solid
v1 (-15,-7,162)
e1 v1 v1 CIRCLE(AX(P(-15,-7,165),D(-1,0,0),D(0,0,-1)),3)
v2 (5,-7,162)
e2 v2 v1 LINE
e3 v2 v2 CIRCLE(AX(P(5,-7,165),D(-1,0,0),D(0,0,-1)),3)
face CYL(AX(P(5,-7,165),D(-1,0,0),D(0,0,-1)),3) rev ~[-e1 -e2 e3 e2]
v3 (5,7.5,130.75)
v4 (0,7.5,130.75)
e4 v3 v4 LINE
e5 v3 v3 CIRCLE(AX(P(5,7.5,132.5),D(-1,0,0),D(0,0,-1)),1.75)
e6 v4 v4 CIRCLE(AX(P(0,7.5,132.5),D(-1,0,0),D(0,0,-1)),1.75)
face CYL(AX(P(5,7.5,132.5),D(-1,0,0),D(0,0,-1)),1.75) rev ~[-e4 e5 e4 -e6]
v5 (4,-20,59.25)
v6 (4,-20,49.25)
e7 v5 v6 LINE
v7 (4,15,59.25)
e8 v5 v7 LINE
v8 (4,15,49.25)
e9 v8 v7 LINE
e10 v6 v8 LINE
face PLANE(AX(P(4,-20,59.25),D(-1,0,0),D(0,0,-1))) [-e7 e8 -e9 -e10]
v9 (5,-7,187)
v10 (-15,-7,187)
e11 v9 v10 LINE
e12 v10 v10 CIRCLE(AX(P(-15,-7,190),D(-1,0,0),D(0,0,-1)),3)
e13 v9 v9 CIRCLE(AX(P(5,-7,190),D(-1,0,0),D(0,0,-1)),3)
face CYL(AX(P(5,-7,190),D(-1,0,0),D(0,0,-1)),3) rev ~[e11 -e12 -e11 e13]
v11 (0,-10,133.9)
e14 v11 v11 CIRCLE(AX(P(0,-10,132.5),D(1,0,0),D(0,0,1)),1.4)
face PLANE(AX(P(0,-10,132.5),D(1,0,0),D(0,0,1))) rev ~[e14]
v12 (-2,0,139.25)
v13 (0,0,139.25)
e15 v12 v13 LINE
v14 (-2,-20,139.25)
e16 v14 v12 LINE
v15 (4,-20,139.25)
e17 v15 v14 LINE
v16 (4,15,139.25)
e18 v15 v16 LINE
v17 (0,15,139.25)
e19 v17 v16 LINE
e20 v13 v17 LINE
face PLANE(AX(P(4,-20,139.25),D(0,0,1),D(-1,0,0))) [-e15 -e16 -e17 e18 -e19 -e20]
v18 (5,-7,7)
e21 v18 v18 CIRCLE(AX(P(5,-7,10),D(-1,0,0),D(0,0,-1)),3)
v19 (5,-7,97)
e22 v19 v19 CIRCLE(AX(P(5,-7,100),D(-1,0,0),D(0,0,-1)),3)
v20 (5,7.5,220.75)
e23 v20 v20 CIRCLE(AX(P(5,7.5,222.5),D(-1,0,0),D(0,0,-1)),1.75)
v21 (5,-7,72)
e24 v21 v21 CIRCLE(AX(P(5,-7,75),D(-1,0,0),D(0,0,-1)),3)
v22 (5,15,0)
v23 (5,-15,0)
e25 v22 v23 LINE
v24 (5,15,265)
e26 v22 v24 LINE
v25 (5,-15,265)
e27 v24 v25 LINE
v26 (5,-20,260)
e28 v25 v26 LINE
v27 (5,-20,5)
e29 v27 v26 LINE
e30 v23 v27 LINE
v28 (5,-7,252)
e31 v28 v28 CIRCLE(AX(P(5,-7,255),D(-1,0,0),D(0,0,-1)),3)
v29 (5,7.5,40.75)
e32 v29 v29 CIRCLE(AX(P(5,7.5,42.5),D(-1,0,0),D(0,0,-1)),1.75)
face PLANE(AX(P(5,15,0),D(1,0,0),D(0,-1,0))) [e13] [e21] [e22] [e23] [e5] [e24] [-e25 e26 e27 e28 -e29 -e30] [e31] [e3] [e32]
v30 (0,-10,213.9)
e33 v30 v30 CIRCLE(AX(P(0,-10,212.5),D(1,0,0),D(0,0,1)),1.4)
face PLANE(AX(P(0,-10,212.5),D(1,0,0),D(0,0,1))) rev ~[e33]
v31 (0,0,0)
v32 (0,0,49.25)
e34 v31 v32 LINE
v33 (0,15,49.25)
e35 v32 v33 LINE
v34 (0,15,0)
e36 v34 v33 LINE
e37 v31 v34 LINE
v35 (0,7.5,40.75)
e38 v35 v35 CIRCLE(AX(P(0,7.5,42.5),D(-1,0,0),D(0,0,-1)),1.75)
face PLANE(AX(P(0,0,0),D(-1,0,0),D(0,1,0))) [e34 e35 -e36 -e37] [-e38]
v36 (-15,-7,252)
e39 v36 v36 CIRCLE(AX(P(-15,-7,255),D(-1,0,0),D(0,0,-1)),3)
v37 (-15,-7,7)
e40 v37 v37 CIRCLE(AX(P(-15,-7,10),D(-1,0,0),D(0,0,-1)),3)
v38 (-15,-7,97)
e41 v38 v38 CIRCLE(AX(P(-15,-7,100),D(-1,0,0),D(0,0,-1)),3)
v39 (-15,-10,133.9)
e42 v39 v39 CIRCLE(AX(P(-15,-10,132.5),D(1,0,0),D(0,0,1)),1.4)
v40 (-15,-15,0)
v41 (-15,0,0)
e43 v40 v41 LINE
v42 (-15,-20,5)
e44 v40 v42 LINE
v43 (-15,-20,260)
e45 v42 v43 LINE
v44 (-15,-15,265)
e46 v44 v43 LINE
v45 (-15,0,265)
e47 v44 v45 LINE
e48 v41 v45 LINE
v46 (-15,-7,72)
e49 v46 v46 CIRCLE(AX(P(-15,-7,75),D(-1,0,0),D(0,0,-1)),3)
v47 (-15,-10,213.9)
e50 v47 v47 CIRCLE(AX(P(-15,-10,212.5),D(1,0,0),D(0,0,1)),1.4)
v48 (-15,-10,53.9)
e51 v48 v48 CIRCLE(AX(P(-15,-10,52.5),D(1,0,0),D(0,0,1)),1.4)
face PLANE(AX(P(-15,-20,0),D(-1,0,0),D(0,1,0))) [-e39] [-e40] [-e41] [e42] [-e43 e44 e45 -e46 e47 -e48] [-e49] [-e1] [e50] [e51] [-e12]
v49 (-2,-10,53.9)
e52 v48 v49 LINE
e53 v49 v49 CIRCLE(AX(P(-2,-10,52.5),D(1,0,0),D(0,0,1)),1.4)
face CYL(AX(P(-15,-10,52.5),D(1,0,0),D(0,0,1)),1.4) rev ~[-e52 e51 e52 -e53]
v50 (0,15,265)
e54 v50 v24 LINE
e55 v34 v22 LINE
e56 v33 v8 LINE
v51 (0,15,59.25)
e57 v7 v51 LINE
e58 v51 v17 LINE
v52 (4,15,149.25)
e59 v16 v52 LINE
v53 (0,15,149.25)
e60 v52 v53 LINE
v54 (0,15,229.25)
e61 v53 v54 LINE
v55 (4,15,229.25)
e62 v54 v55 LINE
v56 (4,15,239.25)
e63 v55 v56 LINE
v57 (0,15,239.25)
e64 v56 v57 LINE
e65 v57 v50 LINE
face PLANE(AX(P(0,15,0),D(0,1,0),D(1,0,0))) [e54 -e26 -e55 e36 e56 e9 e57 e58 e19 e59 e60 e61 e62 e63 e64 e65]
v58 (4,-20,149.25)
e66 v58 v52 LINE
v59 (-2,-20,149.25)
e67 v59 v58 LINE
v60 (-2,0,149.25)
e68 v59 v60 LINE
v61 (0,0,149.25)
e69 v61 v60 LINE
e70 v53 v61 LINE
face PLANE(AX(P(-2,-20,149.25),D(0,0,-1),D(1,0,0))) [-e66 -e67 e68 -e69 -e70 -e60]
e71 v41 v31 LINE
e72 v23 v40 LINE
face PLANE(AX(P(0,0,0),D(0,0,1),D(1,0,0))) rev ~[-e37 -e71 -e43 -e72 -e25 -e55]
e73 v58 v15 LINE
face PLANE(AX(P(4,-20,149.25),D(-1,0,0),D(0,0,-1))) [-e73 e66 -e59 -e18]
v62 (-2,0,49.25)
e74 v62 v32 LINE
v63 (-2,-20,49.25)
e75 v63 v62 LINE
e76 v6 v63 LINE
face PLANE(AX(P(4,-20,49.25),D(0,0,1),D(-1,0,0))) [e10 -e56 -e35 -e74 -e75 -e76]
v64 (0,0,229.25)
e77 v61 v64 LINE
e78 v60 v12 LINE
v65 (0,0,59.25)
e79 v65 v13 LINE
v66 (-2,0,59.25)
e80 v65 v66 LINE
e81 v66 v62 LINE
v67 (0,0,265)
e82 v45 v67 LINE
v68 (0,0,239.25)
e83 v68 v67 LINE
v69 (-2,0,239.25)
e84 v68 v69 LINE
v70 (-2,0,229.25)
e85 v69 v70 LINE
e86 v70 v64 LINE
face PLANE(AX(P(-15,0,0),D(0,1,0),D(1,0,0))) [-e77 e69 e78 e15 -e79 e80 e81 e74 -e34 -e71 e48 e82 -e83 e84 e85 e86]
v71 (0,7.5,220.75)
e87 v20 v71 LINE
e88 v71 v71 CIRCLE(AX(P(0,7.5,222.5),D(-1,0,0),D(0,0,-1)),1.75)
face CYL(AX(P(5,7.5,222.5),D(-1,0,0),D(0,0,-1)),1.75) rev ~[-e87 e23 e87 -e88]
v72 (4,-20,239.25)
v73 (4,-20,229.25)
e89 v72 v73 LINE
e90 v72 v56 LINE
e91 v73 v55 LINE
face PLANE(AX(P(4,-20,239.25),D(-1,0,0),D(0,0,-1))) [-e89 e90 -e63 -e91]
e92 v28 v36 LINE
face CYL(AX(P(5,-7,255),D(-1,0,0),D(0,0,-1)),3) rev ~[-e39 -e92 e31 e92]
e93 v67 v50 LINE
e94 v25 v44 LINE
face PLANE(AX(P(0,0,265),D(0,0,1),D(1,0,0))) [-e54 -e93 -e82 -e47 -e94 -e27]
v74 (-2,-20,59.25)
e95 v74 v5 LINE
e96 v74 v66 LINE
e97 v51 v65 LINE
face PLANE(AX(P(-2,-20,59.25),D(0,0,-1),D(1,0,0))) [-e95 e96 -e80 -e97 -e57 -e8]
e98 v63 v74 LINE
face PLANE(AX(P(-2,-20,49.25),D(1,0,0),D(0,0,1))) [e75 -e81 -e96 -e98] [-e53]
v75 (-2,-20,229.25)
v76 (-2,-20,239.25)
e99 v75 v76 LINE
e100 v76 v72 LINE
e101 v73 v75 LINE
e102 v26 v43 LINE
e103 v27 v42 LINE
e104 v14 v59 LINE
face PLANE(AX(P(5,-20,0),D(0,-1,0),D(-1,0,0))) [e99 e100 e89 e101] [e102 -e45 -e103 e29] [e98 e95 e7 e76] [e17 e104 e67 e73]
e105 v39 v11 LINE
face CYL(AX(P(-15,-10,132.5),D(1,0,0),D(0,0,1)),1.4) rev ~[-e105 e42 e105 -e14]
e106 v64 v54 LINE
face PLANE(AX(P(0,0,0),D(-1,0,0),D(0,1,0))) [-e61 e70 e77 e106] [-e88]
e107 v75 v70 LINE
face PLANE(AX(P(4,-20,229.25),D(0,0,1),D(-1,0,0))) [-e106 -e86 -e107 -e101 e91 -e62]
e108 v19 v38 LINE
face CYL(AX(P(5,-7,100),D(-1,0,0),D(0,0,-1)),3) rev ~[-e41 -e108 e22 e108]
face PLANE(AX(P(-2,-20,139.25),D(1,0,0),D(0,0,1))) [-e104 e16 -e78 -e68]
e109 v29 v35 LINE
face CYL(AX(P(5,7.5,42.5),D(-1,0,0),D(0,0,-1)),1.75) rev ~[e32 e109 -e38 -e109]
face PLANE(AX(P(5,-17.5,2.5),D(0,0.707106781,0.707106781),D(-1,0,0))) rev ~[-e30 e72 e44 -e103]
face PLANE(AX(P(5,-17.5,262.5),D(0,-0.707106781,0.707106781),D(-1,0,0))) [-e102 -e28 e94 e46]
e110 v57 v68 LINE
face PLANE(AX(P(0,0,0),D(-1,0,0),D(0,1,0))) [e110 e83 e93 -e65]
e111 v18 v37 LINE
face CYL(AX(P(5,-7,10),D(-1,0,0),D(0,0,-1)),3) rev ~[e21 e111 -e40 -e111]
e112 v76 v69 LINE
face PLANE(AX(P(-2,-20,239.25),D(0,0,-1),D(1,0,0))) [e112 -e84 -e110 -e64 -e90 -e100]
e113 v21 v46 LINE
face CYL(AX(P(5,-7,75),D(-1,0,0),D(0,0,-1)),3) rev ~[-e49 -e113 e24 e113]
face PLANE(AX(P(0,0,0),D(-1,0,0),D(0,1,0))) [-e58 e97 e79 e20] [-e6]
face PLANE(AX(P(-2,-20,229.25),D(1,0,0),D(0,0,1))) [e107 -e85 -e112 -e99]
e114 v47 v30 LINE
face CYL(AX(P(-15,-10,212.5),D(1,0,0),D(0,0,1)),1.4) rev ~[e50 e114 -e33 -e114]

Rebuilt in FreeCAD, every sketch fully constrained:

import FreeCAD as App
import Part
import Sketcher
from FreeCAD import Vector
Q = App.Units.Quantity


def edges_at(feature, points):
    """Names of the edges that pass closest to the given points."""
    edges = feature.Shape.Edges
    near = lambda p: min(range(len(edges)), key=lambda i: edges[i].distToShape(Part.Vertex(*p))[0])
    return sorted({f"Edge{near(p) + 1}" for p in points})


def add_polygon(sketch, points):
    """Adds a closed chain of lines whose ends are joined by coincident constraints."""
    first, n = sketch.GeometryCount, len(points)
    for a, b in zip(points, points[1:] + points[:1]):
        sketch.addGeometry(Part.LineSegment(App.Vector(*a, 0), App.Vector(*b, 0)), False)
    for i in range(n):
        sketch.addConstraint(Sketcher.Constraint("Coincident", first + i, 2, first + (i + 1) % n, 1))

doc = App.newDocument("Part")
body = doc.addObject("PartDesign::Body", "Body")

# Sketch on XY plane
sketch1 = body.newObject("Sketcher::SketchObject", "Sketch")
sketch1.AttachmentSupport = (doc.getObject("XY_Plane"), [""])
sketch1.MapMode = "FlatFace"
add_polygon(sketch1, [(0, 15), (0, 0), (-15, 0), (-15, -20), (5, -20), (5, 15)])  # lines 0-5
sketch1.addConstraint(Sketcher.Constraint("Vertical", 0))
sketch1.addConstraint(Sketcher.Constraint("Horizontal", 1))
sketch1.addConstraint(Sketcher.Constraint("Vertical", 2))
sketch1.addConstraint(Sketcher.Constraint("Horizontal", 3))
sketch1.addConstraint(Sketcher.Constraint("Vertical", 4))
sketch1.addConstraint(Sketcher.Constraint("Horizontal", 5))
sketch1.addConstraint(Sketcher.Constraint("Coincident", 0, 2, -1, 1))
sketch1.addConstraint(Sketcher.Constraint("Equal", 1, 0))
sketch1.addConstraint(Sketcher.Constraint("Equal", 3, 2))
sketch1.addConstraint(Sketcher.Constraint("DistanceX", 1, 2, 1, 1, Q("15 mm")))
sketch1.addConstraint(Sketcher.Constraint("DistanceX", 5, 2, 5, 1, Q("5 mm")))
pad1 = body.newObject("PartDesign::Pad", "Pad")
pad1.Profile = sketch1
pad1.Length = 265

# Sketch on YZ plane
sketch2 = body.newObject("Sketcher::SketchObject", "Sketch001")
sketch2.AttachmentSupport = (doc.getObject("YZ_Plane"), [""])
sketch2.MapMode = "FlatFace"
sketch2.AttachmentOffset = App.Placement(Vector(0, 0, 5), App.Rotation())
sketch2.addGeometry(Part.Circle(Vector(7.5, 222.5, 0), Vector(0, 0, 1), 1.8), False)
sketch2.addGeometry(Part.Circle(Vector(7.5, 132.5, 0), Vector(0, 0, 1), 1.8), False)
sketch2.addGeometry(Part.Circle(Vector(7.5, 42.5, 0), Vector(0, 0, 1), 1.8), False)
sketch2.addConstraint(Sketcher.Constraint("Equal", 0, 1))
sketch2.addConstraint(Sketcher.Constraint("Equal", 1, 2))
sketch2.addConstraint(Sketcher.Constraint("Vertical", 0, 3, 1, 3))
sketch2.addConstraint(Sketcher.Constraint("Vertical", 1, 3, 2, 3))
sketch2.addConstraint(Sketcher.Constraint("Diameter", 0, Q("3.5 mm")))
sketch2.addConstraint(Sketcher.Constraint("DistanceY", 1, 3, 0, 3, Q("90 mm")))
sketch2.addConstraint(Sketcher.Constraint("DistanceY", 2, 3, 1, 3, Q("90 mm")))
sketch2.addConstraint(Sketcher.Constraint("DistanceX", -1, 1, 0, 3, Q("7.5 mm")))
sketch2.addConstraint(Sketcher.Constraint("DistanceY", -1, 1, 0, 3, Q("222.5 mm")))
doc.recompute()
hole = body.newObject("PartDesign::Hole", "Hole")
hole.Profile = sketch2
hole.ThreadType = "None"
hole.Diameter = 3.5
hole.DepthType = "ThroughAll"
doc.recompute()

chamfer = body.newObject("PartDesign::Chamfer", "Chamfer")
chamfer.Base = (hole, edges_at(hole, [(-5, -20, 265), (-5, -20, 0)]))
chamfer.Size = 5

# Sketch on YZ plane
sketch3 = body.newObject("Sketcher::SketchObject", "Sketch002")
sketch3.AttachmentSupport = (doc.getObject("YZ_Plane"), [""])
sketch3.MapMode = "FlatFace"
sketch3.AttachmentOffset = App.Placement(Vector(0, 0, -15), App.Rotation())
sketch3.addGeometry(Part.Circle(Vector(-10, 52.5, 0), Vector(0, 0, 1), 1.4), False)
sketch3.addGeometry(Part.Circle(Vector(-10, 132.5, 0), Vector(0, 0, 1), 1.4), False)
sketch3.addGeometry(Part.Circle(Vector(-10, 212.5, 0), Vector(0, 0, 1), 1.4), False)
sketch3.addConstraint(Sketcher.Constraint("Equal", 0, 1))
sketch3.addConstraint(Sketcher.Constraint("Equal", 1, 2))
sketch3.addConstraint(Sketcher.Constraint("Vertical", 0, 3, 1, 3))
sketch3.addConstraint(Sketcher.Constraint("Vertical", 1, 3, 2, 3))
sketch3.addConstraint(Sketcher.Constraint("Diameter", 0, Q("2.8 mm")))
sketch3.addConstraint(Sketcher.Constraint("DistanceX", 0, 3, -1, 1, Q("10 mm")))
sketch3.addConstraint(Sketcher.Constraint("DistanceY", 0, 3, 1, 3, Q("80 mm")))
sketch3.addConstraint(Sketcher.Constraint("DistanceY", 1, 3, 2, 3, Q("80 mm")))
sketch3.addConstraint(Sketcher.Constraint("DistanceY", -1, 1, 0, 3, Q("52.5 mm")))
doc.recompute()
hole2 = body.newObject("PartDesign::Hole", "Hole001")
hole2.Profile = sketch3
hole2.ThreadType = "None"
hole2.Diameter = 2.8
hole2.DepthType = "Dimension"
hole2.Depth = 15
hole2.DrillPoint = "Flat"
hole2.Reversed = True

# Sketch on YZ plane
sketch4 = body.newObject("Sketcher::SketchObject", "Sketch003")
sketch4.AttachmentSupport = (doc.getObject("YZ_Plane"), [""])
sketch4.MapMode = "FlatFace"
sketch4.AttachmentOffset = App.Placement(Vector(0, 0, 5), App.Rotation())
sketch4.addGeometry(Part.Circle(Vector(-7, 255, 0), Vector(0, 0, 1), 3), False)
sketch4.addGeometry(Part.Circle(Vector(-7, 190, 0), Vector(0, 0, 1), 3), False)
sketch4.addGeometry(Part.Circle(Vector(-7, 165, 0), Vector(0, 0, 1), 3), False)
sketch4.addGeometry(Part.Circle(Vector(-7, 100, 0), Vector(0, 0, 1), 3), False)
sketch4.addGeometry(Part.Circle(Vector(-7, 10, 0), Vector(0, 0, 1), 3), False)
sketch4.addGeometry(Part.Circle(Vector(-7, 75, 0), Vector(0, 0, 1), 3), False)
sketch4.addConstraint(Sketcher.Constraint("Equal", 0, 1))
sketch4.addConstraint(Sketcher.Constraint("Equal", 1, 2))
sketch4.addConstraint(Sketcher.Constraint("Equal", 2, 3))
sketch4.addConstraint(Sketcher.Constraint("Equal", 3, 4))
sketch4.addConstraint(Sketcher.Constraint("Equal", 4, 5))
sketch4.addConstraint(Sketcher.Constraint("Vertical", 0, 3, 1, 3))
sketch4.addConstraint(Sketcher.Constraint("Vertical", 1, 3, 2, 3))
sketch4.addConstraint(Sketcher.Constraint("Vertical", 2, 3, 3, 3))
sketch4.addConstraint(Sketcher.Constraint("Vertical", 3, 3, 4, 3))
sketch4.addConstraint(Sketcher.Constraint("Vertical", 4, 3, 5, 3))
sketch4.addConstraint(Sketcher.Constraint("Diameter", 0, Q("6 mm")))
sketch4.addConstraint(Sketcher.Constraint("DistanceX", 0, 3, -1, 1, Q("7 mm")))
sketch4.addConstraint(Sketcher.Constraint("DistanceY", -1, 1, 0, 3, Q("255 mm")))
sketch4.addConstraint(Sketcher.Constraint("DistanceY", -1, 1, 1, 3, Q("190 mm")))
sketch4.addConstraint(Sketcher.Constraint("DistanceY", -1, 1, 2, 3, Q("165 mm")))
sketch4.addConstraint(Sketcher.Constraint("DistanceY", -1, 1, 3, 3, Q("100 mm")))
sketch4.addConstraint(Sketcher.Constraint("DistanceY", -1, 1, 4, 3, Q("10 mm")))
sketch4.addConstraint(Sketcher.Constraint("DistanceY", -1, 1, 5, 3, Q("75 mm")))
doc.recompute()
hole3 = body.newObject("PartDesign::Hole", "Hole002")
hole3.Profile = sketch4
hole3.ThreadType = "None"
hole3.Diameter = 6
hole3.DepthType = "ThroughAll"

# Sketch on XZ plane
sketch5 = body.newObject("Sketcher::SketchObject", "Sketch004")
sketch5.AttachmentSupport = (doc.getObject("XZ_Plane"), [""])
sketch5.MapMode = "FlatFace"
sketch5.AttachmentOffset = App.Placement(Vector(0, 0, 20), App.Rotation())
add_polygon(sketch5, [(-2, 229), (4, 229), (4, 239), (-2, 239)])  # lines 0-3
add_polygon(sketch5, [(-2, 139), (4, 139), (4, 149), (-2, 149)])  # lines 4-7
add_polygon(sketch5, [(-2, 49), (4, 49), (4, 59), (-2, 59)])  # lines 8-11
sketch5.addConstraint(Sketcher.Constraint("Horizontal", 0))
sketch5.addConstraint(Sketcher.Constraint("Vertical", 1))
sketch5.addConstraint(Sketcher.Constraint("Horizontal", 2))
sketch5.addConstraint(Sketcher.Constraint("Vertical", 3))
sketch5.addConstraint(Sketcher.Constraint("Horizontal", 4))
sketch5.addConstraint(Sketcher.Constraint("Vertical", 5))
sketch5.addConstraint(Sketcher.Constraint("Horizontal", 6))
sketch5.addConstraint(Sketcher.Constraint("Vertical", 7))
sketch5.addConstraint(Sketcher.Constraint("Horizontal", 8))
sketch5.addConstraint(Sketcher.Constraint("Vertical", 9))
sketch5.addConstraint(Sketcher.Constraint("Horizontal", 10))
sketch5.addConstraint(Sketcher.Constraint("Vertical", 11))
sketch5.addConstraint(Sketcher.Constraint("Vertical", 1, 2, 4, 2))
sketch5.addConstraint(Sketcher.Constraint("Vertical", 3, 2, 6, 2))
sketch5.addConstraint(Sketcher.Constraint("Vertical", 5, 2, 8, 2))
sketch5.addConstraint(Sketcher.Constraint("Vertical", 7, 2, 10, 2))
sketch5.addConstraint(Sketcher.Constraint("Equal", 3, 5))
sketch5.addConstraint(Sketcher.Constraint("Equal", 7, 9))
sketch5.addConstraint(Sketcher.Constraint("DistanceX", 0, 1, 0, 2, Q("6 mm")))
sketch5.addConstraint(Sketcher.Constraint("DistanceY", 1, 1, 1, 2, Q("10 mm")))
sketch5.addConstraint(Sketcher.Constraint("DistanceX", -1, 1, 0, 2, Q("4 mm")))
sketch5.addConstraint(Sketcher.Constraint("DistanceY", 4, 2, 0, 2, Q("90 mm")))
sketch5.addConstraint(Sketcher.Constraint("DistanceY", 8, 2, 4, 2, Q("90 mm")))
sketch5.addConstraint(Sketcher.Constraint("DistanceY", -1, 1, 0, 2, Q("229.25 mm")))
pocket1 = body.newObject("PartDesign::Pocket", "Pocket")
pocket1.Profile = sketch5
pocket1.Type = "ThroughAll"

doc.recompute()
